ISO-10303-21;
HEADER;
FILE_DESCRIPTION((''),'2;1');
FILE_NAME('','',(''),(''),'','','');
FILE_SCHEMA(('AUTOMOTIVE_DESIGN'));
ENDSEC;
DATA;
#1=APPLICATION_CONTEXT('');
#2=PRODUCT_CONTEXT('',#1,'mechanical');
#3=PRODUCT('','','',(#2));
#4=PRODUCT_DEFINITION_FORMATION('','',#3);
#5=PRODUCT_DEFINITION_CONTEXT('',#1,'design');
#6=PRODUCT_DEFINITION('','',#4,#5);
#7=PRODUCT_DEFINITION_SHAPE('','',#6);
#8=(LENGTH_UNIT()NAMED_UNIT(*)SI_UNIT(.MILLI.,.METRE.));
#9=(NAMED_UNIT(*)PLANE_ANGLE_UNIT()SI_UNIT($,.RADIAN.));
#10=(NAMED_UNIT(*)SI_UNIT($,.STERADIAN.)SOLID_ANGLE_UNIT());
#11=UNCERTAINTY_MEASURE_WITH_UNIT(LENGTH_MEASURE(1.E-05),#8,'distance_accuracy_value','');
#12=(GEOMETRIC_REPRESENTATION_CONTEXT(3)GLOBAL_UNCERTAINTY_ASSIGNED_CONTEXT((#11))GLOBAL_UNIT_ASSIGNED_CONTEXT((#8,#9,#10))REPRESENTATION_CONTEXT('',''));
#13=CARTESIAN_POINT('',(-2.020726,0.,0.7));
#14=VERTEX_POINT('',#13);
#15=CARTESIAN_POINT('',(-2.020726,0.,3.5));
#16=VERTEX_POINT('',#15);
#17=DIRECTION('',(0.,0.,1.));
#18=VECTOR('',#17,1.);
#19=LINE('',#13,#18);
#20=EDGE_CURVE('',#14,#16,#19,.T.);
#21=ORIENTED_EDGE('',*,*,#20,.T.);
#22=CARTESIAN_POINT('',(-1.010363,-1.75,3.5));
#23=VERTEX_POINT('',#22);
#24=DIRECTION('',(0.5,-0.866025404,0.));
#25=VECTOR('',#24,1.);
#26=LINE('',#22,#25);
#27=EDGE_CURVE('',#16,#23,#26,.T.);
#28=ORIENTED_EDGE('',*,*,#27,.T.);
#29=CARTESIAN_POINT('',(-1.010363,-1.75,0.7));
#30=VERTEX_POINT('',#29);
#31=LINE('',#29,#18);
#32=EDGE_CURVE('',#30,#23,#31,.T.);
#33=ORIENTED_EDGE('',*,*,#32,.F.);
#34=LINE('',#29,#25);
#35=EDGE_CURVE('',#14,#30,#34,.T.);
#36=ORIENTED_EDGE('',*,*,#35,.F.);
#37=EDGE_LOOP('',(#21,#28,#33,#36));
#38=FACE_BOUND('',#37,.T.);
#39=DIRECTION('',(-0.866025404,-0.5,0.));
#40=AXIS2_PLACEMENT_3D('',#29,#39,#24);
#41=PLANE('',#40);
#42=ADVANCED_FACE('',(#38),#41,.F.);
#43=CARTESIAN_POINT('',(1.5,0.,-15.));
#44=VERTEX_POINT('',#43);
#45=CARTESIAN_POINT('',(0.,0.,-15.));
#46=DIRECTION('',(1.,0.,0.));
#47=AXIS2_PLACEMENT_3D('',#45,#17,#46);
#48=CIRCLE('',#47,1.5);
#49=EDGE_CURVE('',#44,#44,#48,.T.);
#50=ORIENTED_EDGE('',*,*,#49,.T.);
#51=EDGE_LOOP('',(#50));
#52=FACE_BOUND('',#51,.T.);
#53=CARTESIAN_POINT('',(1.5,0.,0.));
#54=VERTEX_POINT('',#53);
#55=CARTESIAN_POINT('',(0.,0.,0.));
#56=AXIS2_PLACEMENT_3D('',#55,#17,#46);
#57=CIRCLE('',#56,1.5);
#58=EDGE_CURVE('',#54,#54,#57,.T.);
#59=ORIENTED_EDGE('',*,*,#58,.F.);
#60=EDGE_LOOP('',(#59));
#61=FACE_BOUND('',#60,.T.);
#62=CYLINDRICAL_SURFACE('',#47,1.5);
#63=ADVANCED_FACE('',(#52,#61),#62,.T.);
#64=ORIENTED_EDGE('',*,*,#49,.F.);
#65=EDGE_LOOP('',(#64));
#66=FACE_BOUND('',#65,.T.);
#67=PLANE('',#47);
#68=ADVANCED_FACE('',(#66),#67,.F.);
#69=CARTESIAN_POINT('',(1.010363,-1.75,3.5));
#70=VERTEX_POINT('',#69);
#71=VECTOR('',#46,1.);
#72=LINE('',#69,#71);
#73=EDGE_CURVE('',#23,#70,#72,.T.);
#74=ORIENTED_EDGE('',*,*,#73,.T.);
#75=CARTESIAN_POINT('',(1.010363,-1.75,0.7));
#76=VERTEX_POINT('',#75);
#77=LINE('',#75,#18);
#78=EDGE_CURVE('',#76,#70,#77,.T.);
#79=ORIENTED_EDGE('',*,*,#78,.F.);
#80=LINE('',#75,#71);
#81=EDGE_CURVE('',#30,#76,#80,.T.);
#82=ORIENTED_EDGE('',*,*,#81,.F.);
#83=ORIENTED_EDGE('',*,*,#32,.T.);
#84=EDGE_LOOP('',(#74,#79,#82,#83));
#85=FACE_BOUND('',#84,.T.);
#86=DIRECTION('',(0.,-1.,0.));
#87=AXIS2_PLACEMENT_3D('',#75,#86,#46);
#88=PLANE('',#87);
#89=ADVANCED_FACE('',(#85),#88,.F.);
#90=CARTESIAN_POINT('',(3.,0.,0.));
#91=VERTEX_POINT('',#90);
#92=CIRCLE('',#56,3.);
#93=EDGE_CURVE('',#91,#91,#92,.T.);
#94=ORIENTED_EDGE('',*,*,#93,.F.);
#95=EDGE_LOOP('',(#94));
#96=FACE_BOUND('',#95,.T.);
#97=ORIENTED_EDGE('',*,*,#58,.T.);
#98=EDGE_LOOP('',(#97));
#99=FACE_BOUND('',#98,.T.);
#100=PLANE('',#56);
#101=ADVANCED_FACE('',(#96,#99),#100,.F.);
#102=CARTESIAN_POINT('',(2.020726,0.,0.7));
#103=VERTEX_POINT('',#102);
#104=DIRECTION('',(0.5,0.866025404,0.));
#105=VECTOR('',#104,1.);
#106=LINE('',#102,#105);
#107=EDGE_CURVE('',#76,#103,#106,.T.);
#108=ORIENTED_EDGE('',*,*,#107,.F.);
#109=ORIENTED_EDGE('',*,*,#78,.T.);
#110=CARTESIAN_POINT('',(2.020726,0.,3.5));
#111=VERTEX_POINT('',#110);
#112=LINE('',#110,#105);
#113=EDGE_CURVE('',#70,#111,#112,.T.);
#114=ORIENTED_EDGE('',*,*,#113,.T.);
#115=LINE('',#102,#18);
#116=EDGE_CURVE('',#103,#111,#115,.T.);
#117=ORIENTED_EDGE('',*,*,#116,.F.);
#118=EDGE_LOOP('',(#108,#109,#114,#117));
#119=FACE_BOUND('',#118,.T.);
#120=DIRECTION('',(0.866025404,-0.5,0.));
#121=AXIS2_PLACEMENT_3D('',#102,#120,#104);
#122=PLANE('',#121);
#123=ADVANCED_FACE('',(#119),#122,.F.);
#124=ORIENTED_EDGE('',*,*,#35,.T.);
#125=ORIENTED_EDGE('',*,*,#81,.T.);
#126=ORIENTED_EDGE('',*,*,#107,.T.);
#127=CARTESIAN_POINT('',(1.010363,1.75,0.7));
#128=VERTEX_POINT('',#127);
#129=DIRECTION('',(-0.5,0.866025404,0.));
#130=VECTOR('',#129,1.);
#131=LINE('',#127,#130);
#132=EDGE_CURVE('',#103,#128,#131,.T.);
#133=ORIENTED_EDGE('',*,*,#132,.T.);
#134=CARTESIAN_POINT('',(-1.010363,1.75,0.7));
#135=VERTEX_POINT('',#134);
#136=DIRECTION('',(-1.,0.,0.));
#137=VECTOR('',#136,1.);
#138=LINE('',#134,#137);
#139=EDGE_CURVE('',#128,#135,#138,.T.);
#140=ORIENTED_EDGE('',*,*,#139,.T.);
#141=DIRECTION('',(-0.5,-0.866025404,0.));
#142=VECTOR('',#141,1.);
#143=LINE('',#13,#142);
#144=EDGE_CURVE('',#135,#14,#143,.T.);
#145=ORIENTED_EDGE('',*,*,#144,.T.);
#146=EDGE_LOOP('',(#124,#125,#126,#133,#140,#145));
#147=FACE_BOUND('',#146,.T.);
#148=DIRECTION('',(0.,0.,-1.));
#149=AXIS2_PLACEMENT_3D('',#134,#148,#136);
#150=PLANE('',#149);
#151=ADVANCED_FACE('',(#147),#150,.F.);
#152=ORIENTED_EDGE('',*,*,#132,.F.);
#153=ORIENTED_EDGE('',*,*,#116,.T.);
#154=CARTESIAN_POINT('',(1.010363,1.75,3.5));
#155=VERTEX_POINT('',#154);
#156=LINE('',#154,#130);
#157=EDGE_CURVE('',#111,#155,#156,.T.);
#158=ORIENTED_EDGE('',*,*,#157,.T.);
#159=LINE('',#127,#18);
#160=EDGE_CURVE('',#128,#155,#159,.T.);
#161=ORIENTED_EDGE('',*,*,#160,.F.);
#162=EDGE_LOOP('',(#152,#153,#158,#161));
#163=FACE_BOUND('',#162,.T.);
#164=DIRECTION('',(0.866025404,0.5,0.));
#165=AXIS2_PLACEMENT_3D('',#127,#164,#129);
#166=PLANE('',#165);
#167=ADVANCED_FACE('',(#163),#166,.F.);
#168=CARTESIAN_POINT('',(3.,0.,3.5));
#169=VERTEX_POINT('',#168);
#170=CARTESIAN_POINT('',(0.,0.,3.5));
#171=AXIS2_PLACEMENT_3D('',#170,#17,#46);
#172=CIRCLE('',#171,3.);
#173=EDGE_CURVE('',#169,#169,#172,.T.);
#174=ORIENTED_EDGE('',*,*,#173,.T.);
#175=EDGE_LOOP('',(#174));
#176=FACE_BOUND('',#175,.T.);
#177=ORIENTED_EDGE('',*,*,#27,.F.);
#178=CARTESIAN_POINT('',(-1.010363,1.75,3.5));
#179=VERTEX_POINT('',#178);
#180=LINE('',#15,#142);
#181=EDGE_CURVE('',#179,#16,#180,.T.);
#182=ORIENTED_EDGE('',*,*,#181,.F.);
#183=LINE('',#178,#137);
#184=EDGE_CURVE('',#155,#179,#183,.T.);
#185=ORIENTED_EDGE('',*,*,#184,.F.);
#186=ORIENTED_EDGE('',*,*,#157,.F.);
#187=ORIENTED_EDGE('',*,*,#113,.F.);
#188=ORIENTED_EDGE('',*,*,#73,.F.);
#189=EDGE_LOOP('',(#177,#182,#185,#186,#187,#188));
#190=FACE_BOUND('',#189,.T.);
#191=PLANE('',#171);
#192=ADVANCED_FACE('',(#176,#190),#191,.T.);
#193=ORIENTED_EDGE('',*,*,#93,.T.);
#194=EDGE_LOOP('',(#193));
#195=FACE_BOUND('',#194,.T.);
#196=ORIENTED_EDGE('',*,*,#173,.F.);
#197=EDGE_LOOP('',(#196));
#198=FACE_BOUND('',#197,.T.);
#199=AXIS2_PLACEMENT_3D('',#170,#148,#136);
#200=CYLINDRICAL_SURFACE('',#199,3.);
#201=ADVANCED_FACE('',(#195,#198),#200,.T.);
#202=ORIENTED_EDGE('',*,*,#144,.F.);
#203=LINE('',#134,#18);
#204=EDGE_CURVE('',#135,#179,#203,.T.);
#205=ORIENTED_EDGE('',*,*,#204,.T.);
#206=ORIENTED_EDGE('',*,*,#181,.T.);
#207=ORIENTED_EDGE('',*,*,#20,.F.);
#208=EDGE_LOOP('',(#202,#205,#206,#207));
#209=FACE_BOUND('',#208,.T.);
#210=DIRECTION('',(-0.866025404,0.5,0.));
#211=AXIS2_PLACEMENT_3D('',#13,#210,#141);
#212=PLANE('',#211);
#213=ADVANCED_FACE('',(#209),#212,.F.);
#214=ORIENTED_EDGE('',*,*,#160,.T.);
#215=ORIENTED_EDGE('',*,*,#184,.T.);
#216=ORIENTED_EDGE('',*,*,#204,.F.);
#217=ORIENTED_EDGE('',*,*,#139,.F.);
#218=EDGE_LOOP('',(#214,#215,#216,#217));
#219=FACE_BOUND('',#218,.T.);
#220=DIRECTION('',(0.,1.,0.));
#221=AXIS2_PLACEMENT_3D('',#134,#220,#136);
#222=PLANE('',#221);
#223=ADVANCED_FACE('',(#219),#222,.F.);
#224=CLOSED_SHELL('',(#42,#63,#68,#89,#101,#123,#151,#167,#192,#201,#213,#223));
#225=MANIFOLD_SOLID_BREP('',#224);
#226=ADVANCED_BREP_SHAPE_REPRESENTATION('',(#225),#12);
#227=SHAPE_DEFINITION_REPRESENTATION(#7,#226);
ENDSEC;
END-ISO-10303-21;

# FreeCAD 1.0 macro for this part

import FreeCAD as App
import Part
import Sketcher

V = App.Vector
Q = App.Units.Quantity


def add_polygon(sketch, points):
    """Adds a closed chain of lines whose ends are joined by coincident constraints."""
    first, n = sketch.GeometryCount, len(points)
    for a, b in zip(points, points[1:] + points[:1]):
        sketch.addGeometry(Part.LineSegment(App.Vector(*a, 0), App.Vector(*b, 0)), False)
    for i in range(n):
        sketch.addConstraint(Sketcher.Constraint("Coincident", first + i, 2, first + (i + 1) % n, 1))

doc = App.newDocument("Part")
body = doc.addObject("PartDesign::Body", "Body")

# Sketch on XY plane
sketch1 = body.newObject("Sketcher::SketchObject", "Sketch")
sketch1.AttachmentSupport = (doc.getObject("XY_Plane"), [""])
sketch1.MapMode = "FlatFace"
sketch1.addGeometry(Part.Circle(V(0, 0, 0), V(0, 0, 1), 3), False)
sketch1.addConstraint(Sketcher.Constraint("Coincident", 0, 3, -1, 1))
sketch1.addConstraint(Sketcher.Constraint("Diameter", 0, Q("6 mm")))
pad1 = body.newObject("PartDesign::Pad", "Pad")
pad1.Profile = sketch1
pad1.Length = 3.5

# Sketch on XY plane
sketch2 = body.newObject("Sketcher::SketchObject", "Sketch001")
sketch2.AttachmentSupport = (doc.getObject("XY_Plane"), [""])
sketch2.MapMode = "FlatFace"
sketch2.AttachmentOffset = App.Placement(V(0, 0, 3.5), App.Rotation())
add_polygon(sketch2, [(1, 1.8), (-1, 1.8), (-2, 0), (-1, -1.8), (1, -1.8), (2, 0)])  # lines 0-5
sketch2.addConstraint(Sketcher.Constraint("Horizontal", 0))
sketch2.addConstraint(Sketcher.Constraint("Horizontal", 3))
sketch2.addConstraint(Sketcher.Constraint("Symmetric", 0, 2, 3, 2, -1, 1))
sketch2.addConstraint(Sketcher.Constraint("Symmetric", 1, 2, 4, 2, -1, 1))
sketch2.addConstraint(Sketcher.Constraint("PointOnObject", 1, 2, -1))
sketch2.addConstraint(Sketcher.Constraint("Parallel", 2, 5))
sketch2.addConstraint(Sketcher.Constraint("Vertical", 0, 2, 2, 2))
sketch2.addConstraint(Sketcher.Constraint("Angle", 1, Q("-120 deg")))
sketch2.addConstraint(Sketcher.Constraint("DistanceY", 2, 2, 0, 2, Q("3.5 mm")))
sketch2.addConstraint(Sketcher.Constraint("DistanceX", 0, 2, 0, 1, Q("2.020726 mm")))
pocket1 = body.newObject("PartDesign::Pocket", "Pocket")
pocket1.Profile = sketch2
pocket1.Length = 2.8

# Sketch on XY plane
sketch3 = body.newObject("Sketcher::SketchObject", "Sketch002")
sketch3.AttachmentSupport = (doc.getObject("XY_Plane"), [""])
sketch3.MapMode = "FlatFace"
sketch3.addGeometry(Part.Circle(V(0, 0, 0), V(0, 0, 1), 1.5), False)
sketch3.addConstraint(Sketcher.Constraint("Coincident", 0, 3, -1, 1))
sketch3.addConstraint(Sketcher.Constraint("Diameter", 0, Q("3 mm")))
pad2 = body.newObject("PartDesign::Pad", "Pad001")
pad2.Profile = sketch3
pad2.Length = 15
pad2.Reversed = True

doc.recompute()
